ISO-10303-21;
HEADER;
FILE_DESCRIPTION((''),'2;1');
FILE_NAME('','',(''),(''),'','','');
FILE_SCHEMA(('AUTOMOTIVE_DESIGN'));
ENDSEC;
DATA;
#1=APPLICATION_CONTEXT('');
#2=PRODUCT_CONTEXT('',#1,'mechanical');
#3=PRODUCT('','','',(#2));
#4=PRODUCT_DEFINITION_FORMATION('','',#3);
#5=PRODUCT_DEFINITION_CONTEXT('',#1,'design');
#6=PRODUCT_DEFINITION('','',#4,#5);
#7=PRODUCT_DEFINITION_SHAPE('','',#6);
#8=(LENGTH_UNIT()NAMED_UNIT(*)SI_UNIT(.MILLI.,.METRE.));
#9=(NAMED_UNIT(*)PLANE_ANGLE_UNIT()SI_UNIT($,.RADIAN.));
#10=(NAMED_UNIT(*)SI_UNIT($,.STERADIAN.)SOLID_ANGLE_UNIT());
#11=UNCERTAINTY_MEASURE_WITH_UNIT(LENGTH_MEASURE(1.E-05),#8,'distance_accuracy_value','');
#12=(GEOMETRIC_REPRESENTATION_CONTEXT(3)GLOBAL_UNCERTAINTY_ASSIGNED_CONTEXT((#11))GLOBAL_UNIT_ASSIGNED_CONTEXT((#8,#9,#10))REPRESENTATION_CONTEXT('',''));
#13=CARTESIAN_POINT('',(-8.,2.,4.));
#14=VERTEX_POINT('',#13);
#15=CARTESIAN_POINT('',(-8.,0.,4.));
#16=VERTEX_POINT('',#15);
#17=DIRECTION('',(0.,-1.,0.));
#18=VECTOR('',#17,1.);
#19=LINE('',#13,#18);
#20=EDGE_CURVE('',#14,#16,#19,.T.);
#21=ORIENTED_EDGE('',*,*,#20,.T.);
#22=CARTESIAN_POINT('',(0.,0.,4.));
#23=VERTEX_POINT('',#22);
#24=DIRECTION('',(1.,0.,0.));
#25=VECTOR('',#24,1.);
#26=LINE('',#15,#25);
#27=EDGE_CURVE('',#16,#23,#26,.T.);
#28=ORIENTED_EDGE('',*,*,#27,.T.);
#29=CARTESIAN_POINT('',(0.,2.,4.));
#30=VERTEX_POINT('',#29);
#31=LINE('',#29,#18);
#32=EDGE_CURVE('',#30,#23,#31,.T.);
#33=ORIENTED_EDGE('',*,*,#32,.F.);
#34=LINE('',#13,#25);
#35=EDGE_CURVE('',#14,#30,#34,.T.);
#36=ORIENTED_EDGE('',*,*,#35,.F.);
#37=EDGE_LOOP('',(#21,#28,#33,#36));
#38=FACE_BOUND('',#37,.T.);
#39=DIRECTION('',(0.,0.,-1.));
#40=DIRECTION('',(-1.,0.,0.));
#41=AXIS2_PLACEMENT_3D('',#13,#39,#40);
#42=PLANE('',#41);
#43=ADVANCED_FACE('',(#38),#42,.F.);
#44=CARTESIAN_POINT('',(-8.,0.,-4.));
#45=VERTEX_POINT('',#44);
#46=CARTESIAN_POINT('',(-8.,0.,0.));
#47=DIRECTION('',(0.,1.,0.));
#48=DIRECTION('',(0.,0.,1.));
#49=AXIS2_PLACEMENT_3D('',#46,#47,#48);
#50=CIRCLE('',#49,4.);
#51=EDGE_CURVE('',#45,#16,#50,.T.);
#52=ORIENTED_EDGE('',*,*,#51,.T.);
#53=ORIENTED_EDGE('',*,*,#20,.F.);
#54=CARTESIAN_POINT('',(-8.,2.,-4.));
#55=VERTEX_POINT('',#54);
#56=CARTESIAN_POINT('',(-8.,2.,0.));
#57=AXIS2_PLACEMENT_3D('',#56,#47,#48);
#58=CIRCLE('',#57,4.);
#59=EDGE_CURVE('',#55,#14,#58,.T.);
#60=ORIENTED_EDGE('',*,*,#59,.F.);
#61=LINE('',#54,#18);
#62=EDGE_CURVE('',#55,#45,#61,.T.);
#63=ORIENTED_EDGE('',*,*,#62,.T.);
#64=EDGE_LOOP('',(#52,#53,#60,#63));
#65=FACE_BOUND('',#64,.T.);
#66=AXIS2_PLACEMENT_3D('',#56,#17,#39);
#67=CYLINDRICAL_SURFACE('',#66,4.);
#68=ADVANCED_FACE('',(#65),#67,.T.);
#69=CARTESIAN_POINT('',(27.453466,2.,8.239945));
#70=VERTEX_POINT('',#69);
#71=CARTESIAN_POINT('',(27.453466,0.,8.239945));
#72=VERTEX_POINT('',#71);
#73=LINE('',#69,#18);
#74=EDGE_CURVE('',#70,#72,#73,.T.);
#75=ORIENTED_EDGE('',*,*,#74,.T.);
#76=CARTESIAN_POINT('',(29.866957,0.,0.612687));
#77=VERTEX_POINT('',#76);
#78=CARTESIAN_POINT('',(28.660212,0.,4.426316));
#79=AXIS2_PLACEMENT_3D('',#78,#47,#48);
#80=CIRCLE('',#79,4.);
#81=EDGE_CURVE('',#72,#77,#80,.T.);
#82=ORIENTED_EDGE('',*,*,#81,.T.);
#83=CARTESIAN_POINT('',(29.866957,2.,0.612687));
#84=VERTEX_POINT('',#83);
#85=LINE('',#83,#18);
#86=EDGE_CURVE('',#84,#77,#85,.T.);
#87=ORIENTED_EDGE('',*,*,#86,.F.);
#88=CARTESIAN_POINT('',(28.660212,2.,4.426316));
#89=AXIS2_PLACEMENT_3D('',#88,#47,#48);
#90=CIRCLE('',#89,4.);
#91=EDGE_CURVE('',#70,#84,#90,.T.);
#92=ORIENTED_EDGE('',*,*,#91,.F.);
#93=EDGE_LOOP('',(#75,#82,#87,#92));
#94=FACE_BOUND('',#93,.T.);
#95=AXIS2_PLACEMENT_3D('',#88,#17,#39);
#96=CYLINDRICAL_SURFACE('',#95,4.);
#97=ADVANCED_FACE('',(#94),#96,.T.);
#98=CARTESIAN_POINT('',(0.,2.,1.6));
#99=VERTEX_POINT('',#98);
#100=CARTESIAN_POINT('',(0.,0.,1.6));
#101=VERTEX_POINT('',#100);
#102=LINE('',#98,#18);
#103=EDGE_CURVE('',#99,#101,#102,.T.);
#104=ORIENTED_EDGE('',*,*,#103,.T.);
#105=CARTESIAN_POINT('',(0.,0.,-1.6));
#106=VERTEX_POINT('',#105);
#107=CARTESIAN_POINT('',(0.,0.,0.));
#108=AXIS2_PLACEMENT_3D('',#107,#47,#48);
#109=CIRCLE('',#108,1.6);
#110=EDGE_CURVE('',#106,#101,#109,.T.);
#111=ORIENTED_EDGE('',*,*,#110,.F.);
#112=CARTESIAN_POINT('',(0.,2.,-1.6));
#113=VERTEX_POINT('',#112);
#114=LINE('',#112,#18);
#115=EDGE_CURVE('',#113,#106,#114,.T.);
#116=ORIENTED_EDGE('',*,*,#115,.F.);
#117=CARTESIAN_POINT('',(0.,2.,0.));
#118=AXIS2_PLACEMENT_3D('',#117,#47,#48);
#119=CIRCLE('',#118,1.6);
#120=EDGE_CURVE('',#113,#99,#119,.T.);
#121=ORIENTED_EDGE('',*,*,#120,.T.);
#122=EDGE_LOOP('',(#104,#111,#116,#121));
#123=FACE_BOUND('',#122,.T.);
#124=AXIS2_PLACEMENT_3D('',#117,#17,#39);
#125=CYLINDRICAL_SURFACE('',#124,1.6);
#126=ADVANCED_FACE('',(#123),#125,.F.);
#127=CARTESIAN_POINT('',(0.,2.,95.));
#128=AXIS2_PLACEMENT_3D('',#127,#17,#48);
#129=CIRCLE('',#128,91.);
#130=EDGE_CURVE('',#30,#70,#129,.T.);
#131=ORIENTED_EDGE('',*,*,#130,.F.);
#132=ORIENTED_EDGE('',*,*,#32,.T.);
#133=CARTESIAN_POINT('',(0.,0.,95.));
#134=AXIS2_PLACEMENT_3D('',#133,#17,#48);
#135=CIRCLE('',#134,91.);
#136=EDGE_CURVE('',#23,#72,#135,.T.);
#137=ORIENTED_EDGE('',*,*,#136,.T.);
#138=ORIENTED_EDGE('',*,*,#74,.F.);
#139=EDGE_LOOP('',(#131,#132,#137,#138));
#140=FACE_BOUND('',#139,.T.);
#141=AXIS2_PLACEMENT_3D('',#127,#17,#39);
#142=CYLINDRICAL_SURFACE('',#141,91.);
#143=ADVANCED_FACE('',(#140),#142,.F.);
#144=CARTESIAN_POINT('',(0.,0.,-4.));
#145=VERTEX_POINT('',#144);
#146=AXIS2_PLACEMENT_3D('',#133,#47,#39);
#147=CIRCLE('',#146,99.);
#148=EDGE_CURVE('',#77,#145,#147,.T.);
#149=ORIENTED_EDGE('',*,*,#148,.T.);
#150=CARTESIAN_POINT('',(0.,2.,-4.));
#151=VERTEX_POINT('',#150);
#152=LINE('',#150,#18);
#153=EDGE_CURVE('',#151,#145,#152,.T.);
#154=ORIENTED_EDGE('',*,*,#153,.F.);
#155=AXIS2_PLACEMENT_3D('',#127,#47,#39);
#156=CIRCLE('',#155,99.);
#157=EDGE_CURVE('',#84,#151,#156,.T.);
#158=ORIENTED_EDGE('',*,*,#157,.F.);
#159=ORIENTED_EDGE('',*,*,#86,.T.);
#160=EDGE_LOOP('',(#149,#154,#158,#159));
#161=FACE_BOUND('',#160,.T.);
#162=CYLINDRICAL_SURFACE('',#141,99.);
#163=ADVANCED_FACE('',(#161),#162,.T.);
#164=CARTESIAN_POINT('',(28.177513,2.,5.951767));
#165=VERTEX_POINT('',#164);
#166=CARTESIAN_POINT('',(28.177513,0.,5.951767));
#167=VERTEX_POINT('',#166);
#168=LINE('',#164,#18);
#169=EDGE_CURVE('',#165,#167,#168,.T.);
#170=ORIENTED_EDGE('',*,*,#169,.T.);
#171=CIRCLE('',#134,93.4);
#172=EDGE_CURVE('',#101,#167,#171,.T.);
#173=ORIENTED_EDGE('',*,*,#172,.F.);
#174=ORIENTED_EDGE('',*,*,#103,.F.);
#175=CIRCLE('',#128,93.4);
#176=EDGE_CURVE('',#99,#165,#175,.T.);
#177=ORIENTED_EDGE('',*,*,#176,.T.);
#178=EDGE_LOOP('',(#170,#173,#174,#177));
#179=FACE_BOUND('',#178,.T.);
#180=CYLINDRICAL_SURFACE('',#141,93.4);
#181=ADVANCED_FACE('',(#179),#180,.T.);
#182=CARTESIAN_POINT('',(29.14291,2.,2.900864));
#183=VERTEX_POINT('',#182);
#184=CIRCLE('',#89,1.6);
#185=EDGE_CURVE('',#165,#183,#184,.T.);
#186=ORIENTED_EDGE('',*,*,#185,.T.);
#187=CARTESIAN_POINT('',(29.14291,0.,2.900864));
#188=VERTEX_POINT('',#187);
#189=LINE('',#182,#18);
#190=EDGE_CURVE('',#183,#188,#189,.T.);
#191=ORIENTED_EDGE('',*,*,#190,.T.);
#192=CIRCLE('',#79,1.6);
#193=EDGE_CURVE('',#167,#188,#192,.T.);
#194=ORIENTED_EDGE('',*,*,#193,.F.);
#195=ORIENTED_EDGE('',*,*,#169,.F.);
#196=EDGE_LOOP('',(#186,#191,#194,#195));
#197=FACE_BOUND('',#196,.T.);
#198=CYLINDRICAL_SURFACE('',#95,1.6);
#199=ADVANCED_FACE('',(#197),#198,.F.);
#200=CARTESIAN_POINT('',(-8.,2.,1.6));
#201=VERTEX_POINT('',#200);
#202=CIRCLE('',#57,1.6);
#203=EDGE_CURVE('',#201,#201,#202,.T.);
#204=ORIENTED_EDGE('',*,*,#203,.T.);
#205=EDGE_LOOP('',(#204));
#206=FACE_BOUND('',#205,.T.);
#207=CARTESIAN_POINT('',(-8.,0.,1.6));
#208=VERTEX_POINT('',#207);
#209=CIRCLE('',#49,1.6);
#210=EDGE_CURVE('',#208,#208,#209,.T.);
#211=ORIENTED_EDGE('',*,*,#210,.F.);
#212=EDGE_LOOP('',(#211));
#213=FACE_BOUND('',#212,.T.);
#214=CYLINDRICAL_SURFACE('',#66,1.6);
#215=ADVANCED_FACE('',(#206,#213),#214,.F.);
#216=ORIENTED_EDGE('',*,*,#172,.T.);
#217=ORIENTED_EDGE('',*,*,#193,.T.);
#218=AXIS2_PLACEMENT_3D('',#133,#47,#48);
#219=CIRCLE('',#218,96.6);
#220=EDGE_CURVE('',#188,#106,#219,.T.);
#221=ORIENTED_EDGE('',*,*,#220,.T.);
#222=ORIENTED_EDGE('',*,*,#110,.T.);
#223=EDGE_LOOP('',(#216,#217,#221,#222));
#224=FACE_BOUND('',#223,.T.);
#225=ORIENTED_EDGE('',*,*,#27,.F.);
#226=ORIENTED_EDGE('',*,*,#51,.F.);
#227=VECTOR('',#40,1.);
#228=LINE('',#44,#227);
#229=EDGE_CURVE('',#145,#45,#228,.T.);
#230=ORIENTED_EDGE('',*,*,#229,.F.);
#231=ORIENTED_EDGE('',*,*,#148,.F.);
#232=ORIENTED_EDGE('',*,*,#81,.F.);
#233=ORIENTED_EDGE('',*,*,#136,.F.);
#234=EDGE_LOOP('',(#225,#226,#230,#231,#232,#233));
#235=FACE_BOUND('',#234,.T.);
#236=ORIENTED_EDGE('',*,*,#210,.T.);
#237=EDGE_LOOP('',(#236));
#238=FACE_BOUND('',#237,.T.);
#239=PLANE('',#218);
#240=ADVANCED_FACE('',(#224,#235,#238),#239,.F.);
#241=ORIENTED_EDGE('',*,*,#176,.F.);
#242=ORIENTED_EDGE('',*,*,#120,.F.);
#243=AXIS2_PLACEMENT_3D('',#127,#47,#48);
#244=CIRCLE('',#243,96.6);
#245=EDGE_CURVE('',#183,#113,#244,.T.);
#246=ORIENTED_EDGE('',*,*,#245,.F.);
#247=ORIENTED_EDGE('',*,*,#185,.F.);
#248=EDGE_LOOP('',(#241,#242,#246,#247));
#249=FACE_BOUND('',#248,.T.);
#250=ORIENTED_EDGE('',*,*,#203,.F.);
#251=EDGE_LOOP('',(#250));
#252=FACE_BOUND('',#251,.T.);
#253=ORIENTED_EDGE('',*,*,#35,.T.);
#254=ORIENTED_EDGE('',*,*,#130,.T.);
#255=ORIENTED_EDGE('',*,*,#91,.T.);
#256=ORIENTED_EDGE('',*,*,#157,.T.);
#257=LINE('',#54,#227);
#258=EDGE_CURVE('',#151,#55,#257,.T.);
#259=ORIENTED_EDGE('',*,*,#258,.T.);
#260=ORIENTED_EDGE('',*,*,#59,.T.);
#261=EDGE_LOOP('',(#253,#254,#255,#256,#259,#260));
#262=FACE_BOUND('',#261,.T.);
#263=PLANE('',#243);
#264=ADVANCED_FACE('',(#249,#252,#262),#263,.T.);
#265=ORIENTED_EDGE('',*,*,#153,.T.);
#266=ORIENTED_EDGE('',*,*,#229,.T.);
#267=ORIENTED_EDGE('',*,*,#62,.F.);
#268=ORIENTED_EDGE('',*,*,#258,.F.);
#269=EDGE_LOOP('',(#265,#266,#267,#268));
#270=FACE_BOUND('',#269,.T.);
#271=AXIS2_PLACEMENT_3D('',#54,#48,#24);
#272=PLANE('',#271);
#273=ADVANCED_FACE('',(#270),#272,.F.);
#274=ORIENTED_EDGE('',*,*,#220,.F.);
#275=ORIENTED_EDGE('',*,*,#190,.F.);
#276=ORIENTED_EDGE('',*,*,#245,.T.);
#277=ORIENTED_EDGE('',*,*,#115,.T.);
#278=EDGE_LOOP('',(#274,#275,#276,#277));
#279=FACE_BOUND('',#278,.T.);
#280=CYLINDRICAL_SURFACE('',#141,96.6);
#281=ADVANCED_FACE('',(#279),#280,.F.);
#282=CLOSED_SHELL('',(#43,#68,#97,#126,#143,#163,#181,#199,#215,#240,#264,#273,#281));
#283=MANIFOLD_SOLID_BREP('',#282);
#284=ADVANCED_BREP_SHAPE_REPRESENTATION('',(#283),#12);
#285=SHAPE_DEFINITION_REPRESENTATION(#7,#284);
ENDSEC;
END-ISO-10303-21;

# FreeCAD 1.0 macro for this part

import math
import FreeCAD as App
import Part
import Sketcher
from FreeCAD import Vector

doc = App.newDocument("Part")
body = doc.addObject("PartDesign::Body", "Body")

# Sketch on XZ plane
sketch1 = body.newObject("Sketcher::SketchObject", "Sketch")
sketch1.AttachmentSupport = (doc.getObject("XZ_Plane"), [""])
sketch1.MapMode = "FlatFace"
sketch1.addGeometry(Part.LineSegment(Vector(0, -4, 0), Vector(-8, -4, 0)), False)
sketch1.addGeometry(Part.ArcOfCircle(Part.Circle(Vector(-8, 0, 0), Vector(0, 0, 1), 4), math.radians(90), math.radians(270)), False)
sketch1.addGeometry(Part.LineSegment(Vector(-8, 4, 0), Vector(0, 4, 0)), False)
sketch1.addGeometry(Part.ArcOfCircle(Part.Circle(Vector(0, 95, 0), Vector(0, 0, 1), 91), math.radians(-90), math.radians(-72.44)), False)
sketch1.addGeometry(Part.ArcOfCircle(Part.Circle(Vector(28.7, 4.4, 0), Vector(0, 0, 1), 4), math.radians(-72), math.radians(108)), False)
sketch1.addGeometry(Part.ArcOfCircle(Part.Circle(Vector(0, 95, 0), Vector(0, 0, 1), 99), math.radians(-90), math.radians(-72.44)), False)
sketch1.addGeometry(Part.ArcOfCircle(Part.Circle(Vector(28.7, 4.4, 0), Vector(0, 0, 1), 1.6), math.radians(-72), math.radians(108)), False)
sketch1.addGeometry(Part.ArcOfCircle(Part.Circle(Vector(0, 95, 0), Vector(0, 0, 1), 93.4), math.radians(-90), math.radians(-72.44)), False)
sketch1.addGeometry(Part.ArcOfCircle(Part.Circle(Vector(0, 0, 0), Vector(0, 0, 1), 1.6), math.radians(90), math.radians(270)), False)
sketch1.addGeometry(Part.ArcOfCircle(Part.Circle(Vector(0, 95, 0), Vector(0, 0, 1), 96.6), math.radians(-90), math.radians(-72.44)), False)
sketch1.addGeometry(Part.Circle(Vector(-8, 0, 0), Vector(0, 0, 1), 1.6), False)
sketch1.addConstraint(Sketcher.Constraint("Tangent", 0, 2, 1, 2))
sketch1.addConstraint(Sketcher.Constraint("Tangent", 1, 1, 2, 1))
sketch1.addConstraint(Sketcher.Constraint("Tangent", 2, 2, 3, 1))
sketch1.addConstraint(Sketcher.Constraint("Tangent", 3, 2, 4, 2))
sketch1.addConstraint(Sketcher.Constraint("Tangent", 4, 1, 5, 2))
sketch1.addConstraint(Sketcher.Constraint("Tangent", 5, 1, 0, 1))
sketch1.addConstraint(Sketcher.Constraint("Tangent", 6, 2, 7, 2))
sketch1.addConstraint(Sketcher.Constraint("Tangent", 7, 1, 8, 1))
sketch1.addConstraint(Sketcher.Constraint("Tangent", 8, 2, 9, 1))
sketch1.addConstraint(Sketcher.Constraint("Tangent", 9, 2, 6, 1))
sketch1.addConstraint(Sketcher.Constraint("Horizontal", 0))
sketch1.addConstraint(Sketcher.Constraint("Horizontal", 2))
sketch1.addConstraint(Sketcher.Constraint("Coincident", 8, 3, -1, 1))
sketch1.addConstraint(Sketcher.Constraint("Coincident", 5, 3, 3, 3))
sketch1.addConstraint(Sketcher.Constraint("Coincident", 6, 3, 4, 3))
sketch1.addConstraint(Sketcher.Constraint("Coincident", 7, 3, 3, 3))
sketch1.addConstraint(Sketcher.Constraint("Coincident", 9, 3, 3, 3))
sketch1.addConstraint(Sketcher.Constraint("Coincident", 10, 3, 1, 3))
sketch1.addConstraint(Sketcher.Constraint("Equal", 8, 10))
sketch1.addConstraint(Sketcher.Constraint("PointOnObject", 3, 3, -2))
sketch1.addConstraint(Sketcher.Constraint("Radius", 1, 4.0))
sketch1.addConstraint(Sketcher.Constraint("Radius", 3, 91.0))
sketch1.addConstraint(Sketcher.Constraint("Diameter", 10, 3.2))
sketch1.addConstraint(Sketcher.Constraint("DistanceX", 0, 2, 0, 1, 8.0))
sketch1.addConstraint(Sketcher.Constraint("DistanceX", 6, 2, 6, 3, 0.482698))
pad1 = body.newObject("PartDesign::Pad", "Pad")
pad1.Profile = sketch1
pad1.Length = 2
pad1.Reversed = True

doc.recompute()
